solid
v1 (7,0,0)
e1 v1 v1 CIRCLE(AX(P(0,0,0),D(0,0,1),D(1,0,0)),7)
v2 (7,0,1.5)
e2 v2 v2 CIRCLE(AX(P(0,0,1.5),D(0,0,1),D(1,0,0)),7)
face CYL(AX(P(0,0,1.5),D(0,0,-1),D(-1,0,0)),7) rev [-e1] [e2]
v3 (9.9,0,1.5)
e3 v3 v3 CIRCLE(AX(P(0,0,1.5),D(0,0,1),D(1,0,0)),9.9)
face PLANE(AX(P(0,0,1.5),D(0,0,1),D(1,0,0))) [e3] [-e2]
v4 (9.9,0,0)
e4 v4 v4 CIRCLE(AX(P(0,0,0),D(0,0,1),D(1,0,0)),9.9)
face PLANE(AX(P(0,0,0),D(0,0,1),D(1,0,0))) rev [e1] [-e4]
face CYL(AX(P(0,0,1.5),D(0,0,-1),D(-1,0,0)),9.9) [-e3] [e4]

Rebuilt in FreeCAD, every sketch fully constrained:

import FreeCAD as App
import Part
import Sketcher

V = App.Vector

doc = App.newDocument("Part")
body = doc.addObject("PartDesign::Body", "Body")

# Sketch on XY plane
sketch1 = body.newObject("Sketcher::SketchObject", "Sketch")
sketch1.AttachmentSupport = (doc.getObject("XY_Plane"), [""])
sketch1.MapMode = "FlatFace"
sketch1.addGeometry([
    Part.Circle(V(0, 0, 0), V(0, 0, 1), 10),
    Part.Circle(V(0, 0, 0), V(0, 0, 1), 7),
], False)
sketch1.addConstraint([
    Sketcher.Constraint("Coincident", 0, 3, -1, 1),
    Sketcher.Constraint("Coincident", 1, 3, -1, 1),
    Sketcher.Constraint("Diameter", 1, 14.0),
    Sketcher.Constraint("Diameter", 0, 19.8),
])
pad1 = body.newObject("PartDesign::Pad", "Pad")
pad1.Profile = sketch1
pad1.Length = 1.5

doc.recompute()
